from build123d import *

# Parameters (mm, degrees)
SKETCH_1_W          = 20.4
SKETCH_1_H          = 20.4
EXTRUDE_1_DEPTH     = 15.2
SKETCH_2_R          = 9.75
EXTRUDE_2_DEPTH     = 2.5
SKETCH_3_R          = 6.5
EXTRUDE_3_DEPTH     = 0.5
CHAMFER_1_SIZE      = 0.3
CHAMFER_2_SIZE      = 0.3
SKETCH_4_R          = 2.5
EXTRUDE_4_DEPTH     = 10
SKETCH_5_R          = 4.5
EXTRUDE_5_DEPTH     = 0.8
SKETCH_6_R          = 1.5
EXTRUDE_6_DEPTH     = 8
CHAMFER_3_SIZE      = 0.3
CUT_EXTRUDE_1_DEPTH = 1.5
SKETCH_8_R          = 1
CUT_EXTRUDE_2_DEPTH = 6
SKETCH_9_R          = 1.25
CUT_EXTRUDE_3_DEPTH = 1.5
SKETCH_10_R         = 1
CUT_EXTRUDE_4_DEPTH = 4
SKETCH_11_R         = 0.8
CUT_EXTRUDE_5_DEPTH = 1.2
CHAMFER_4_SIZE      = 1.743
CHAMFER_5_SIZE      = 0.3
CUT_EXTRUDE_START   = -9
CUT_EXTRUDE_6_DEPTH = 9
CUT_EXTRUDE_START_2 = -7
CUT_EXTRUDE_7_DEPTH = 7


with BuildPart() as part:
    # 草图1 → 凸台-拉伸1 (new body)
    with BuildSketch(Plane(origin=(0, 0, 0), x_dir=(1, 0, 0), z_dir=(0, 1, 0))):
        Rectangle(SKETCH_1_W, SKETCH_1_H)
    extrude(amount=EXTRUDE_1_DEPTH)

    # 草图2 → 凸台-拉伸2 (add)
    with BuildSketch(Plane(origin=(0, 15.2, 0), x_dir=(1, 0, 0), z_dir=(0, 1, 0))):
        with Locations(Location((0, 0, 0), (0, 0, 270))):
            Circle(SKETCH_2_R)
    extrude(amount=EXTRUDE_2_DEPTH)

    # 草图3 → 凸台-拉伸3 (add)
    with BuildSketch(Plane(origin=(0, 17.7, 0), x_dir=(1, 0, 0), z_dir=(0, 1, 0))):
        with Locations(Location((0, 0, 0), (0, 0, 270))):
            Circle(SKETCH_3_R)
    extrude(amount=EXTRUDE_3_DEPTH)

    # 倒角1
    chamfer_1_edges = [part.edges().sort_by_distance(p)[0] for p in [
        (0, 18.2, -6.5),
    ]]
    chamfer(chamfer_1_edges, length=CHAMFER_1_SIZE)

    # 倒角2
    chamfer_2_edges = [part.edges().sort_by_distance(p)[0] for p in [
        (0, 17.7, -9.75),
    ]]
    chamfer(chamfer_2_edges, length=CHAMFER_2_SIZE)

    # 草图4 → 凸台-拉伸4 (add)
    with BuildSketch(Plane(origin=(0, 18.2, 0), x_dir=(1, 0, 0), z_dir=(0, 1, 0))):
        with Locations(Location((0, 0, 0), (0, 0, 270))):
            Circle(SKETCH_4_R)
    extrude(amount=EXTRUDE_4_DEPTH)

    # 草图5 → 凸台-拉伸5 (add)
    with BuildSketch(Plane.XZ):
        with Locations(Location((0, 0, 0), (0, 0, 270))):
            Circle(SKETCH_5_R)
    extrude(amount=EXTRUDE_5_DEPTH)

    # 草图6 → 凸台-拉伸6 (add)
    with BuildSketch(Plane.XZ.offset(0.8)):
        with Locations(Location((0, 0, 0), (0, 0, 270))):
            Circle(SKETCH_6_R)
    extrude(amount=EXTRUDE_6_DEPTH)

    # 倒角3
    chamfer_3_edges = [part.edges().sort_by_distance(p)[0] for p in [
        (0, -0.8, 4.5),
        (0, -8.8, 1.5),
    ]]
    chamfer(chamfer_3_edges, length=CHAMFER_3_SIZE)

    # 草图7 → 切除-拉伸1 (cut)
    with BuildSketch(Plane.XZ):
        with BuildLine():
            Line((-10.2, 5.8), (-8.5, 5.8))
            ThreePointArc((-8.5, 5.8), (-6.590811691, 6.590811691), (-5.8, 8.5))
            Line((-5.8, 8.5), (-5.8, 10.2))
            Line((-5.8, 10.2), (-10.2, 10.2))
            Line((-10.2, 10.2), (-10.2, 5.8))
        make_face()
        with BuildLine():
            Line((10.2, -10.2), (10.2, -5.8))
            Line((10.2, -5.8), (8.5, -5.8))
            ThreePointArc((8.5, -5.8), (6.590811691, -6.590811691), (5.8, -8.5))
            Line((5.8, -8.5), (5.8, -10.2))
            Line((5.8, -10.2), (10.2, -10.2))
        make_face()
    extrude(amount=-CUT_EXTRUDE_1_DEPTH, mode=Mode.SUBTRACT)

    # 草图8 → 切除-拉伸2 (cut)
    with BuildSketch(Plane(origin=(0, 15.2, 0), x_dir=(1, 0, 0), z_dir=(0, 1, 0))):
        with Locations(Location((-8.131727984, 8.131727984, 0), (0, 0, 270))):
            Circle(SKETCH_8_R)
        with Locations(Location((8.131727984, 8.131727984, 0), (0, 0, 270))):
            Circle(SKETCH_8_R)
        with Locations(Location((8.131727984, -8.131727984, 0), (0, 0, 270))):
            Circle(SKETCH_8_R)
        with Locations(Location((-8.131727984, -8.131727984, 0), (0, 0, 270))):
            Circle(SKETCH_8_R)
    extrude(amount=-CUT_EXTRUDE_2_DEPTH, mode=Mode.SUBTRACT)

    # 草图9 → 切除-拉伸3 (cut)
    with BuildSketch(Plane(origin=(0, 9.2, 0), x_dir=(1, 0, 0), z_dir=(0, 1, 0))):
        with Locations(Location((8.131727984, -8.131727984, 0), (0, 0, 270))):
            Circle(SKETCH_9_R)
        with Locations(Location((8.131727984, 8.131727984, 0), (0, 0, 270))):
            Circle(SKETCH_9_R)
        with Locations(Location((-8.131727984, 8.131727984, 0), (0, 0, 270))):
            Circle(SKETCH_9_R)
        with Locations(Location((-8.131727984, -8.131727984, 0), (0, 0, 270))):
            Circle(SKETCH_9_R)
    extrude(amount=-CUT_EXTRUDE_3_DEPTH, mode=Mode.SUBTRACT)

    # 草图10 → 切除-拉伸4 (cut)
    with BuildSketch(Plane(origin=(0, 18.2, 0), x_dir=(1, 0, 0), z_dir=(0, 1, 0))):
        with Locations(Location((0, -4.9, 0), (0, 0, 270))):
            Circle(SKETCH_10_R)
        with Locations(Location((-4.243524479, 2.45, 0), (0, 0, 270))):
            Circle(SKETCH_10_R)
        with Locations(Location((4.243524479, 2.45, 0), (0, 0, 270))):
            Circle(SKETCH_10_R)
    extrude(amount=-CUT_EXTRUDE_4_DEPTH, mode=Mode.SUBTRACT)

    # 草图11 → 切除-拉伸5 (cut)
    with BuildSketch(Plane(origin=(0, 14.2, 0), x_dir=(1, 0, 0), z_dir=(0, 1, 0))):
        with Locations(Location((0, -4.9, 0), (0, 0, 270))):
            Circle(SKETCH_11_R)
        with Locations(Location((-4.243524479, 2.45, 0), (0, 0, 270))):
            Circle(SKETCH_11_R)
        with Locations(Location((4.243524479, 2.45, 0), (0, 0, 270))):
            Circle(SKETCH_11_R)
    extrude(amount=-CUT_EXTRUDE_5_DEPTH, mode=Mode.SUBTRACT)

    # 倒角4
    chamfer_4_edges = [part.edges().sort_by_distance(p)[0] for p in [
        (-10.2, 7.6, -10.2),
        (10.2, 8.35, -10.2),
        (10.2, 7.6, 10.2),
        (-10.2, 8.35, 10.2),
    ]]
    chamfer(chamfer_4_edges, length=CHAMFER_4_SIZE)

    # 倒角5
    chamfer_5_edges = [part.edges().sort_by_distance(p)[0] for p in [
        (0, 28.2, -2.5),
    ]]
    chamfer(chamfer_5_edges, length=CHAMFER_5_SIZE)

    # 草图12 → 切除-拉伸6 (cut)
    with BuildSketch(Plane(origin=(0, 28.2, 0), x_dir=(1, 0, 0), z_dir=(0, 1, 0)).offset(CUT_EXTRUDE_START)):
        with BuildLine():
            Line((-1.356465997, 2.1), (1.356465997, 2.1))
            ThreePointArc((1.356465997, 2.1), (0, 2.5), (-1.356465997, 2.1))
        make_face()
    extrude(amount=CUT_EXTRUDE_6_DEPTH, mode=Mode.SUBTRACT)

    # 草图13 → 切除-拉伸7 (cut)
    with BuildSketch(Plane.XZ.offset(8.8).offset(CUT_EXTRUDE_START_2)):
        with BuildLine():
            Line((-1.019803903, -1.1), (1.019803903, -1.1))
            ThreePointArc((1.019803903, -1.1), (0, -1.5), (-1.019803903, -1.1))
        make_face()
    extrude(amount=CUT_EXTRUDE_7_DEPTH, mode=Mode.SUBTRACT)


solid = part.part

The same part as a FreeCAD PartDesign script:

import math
import FreeCAD as App
import Part
import Sketcher

V = App.Vector


def edges_at(feature, points):
    """Names of the edges that pass closest to the given points."""
    edges = feature.Shape.Edges
    near = lambda p: min(range(len(edges)), key=lambda i: edges[i].distToShape(Part.Vertex(*p))[0])
    return sorted({f"Edge{near(p) + 1}" for p in points})

doc = App.newDocument("Part")
params = doc.addObject("Spreadsheet::Sheet", "Params")
for row, (alias, value) in enumerate([
    ("sketch1_width", "20.4 mm"),
    ("pad1_length", "15.2 mm"),
    ("sketch2_diameter", "19.5 mm"),
    ("pad2_length", "2.5 mm"),
    ("sketch3_diameter", "13 mm"),
    ("pad3_length", "0.5 mm"),
    ("chamfer_size", "0.3 mm"),
    ("chamfer2_size", "0.3 mm"),
    ("sketch4_diameter", "5 mm"),
    ("pad4_length", "10 mm"),
    ("sketch5_diameter", "9 mm"),
    ("pad5_length", "0.8 mm"),
    ("sketch6_diameter", "3 mm"),
    ("pad6_length", "8 mm"),
    ("chamfer3_size", "0.3 mm"),
    ("sketch7_radius", "2.7 mm"),
    ("sketch7_width", "1.7 mm"),
    ("pocket1_length", "1.5 mm"),
    ("sketch8_diameter", "2 mm"),
    ("pocket2_length", "6 mm"),
    ("sketch9_diameter", "2.5 mm"),
    ("pocket3_length", "1.5 mm"),
    ("sketch10_diameter", "2 mm"),
    ("pocket4_length", "4 mm"),
    ("sketch11_diameter", "1.6 mm"),
    ("pocket5_length", "1.2 mm"),
    ("chamfer4_size", "1.743 mm"),
    ("chamfer5_size", "0.3 mm"),
    ("sketch12_radius", "2.5 mm"),
    ("pocket6_length", "9 mm"),
    ("sketch13_radius", "1.5 mm"),
    ("pocket7_length", "7 mm"),
], start=1):
    params.set(f"A{row}", alias)
    params.set(f"B{row}", "=" + value)
    params.setAlias(f"B{row}", alias)

body = doc.addObject("PartDesign::Body", "Body")

sketch1 = body.newObject("Sketcher::SketchObject", "Sketch")
sketch1.AttachmentSupport = (doc.getObject("XZ_Plane"), [""])
sketch1.MapMode = "FlatFace"
sketch1.addGeometry([
    Part.LineSegment(V(-10, -10, 0), V(-10, 10, 0)),
    Part.LineSegment(V(-10, 10, 0), V(10, 10, 0)),
    Part.LineSegment(V(10, 10, 0), V(10, -10, 0)),
    Part.LineSegment(V(10, -10, 0), V(-10, -10, 0)),
], False)
sketch1.addConstraint([
    Sketcher.Constraint("Coincident", 0, 2, 1, 1),
    Sketcher.Constraint("Coincident", 1, 2, 2, 1),
    Sketcher.Constraint("Coincident", 2, 2, 3, 1),
    Sketcher.Constraint("Coincident", 3, 2, 0, 1),
    Sketcher.Constraint("Vertical", 0),
    Sketcher.Constraint("Horizontal", 1),
    Sketcher.Constraint("Vertical", 2),
    Sketcher.Constraint("Horizontal", 3),
    Sketcher.Constraint("Symmetric", 0, 2, 2, 2, -1, 1),
    Sketcher.Constraint("Equal", 3, 0),
    Sketcher.Constraint("DistanceX", 1, 1, 1, 2, 20.4),
])
sketch1.setExpression("Constraints[10]", "Params.sketch1_width")
pad1 = body.newObject("PartDesign::Pad", "Pad")
pad1.Profile = sketch1
pad1.setExpression("Length", "Params.pad1_length")
pad1.Reversed = True

sketch2 = body.newObject("Sketcher::SketchObject", "Sketch001")
sketch2.AttachmentSupport = (doc.getObject("XZ_Plane"), [""])
sketch2.MapMode = "FlatFace"
sketch2.AttachmentOffset = App.Placement(V(0, 0, -15.2), App.Rotation())
sketch2.addGeometry(Part.Circle(V(0, 0, 0), V(0, 0, 1), 10), False)
sketch2.addConstraint([
    Sketcher.Constraint("Coincident", 0, 3, -1, 1),
    Sketcher.Constraint("Diameter", 0, 19.5),
])
sketch2.setExpression("Constraints[1]", "Params.sketch2_diameter")
pad2 = body.newObject("PartDesign::Pad", "Pad001")
pad2.Profile = sketch2
pad2.setExpression("Length", "Params.pad2_length")
pad2.Reversed = True

sketch3 = body.newObject("Sketcher::SketchObject", "Sketch002")
sketch3.AttachmentSupport = (doc.getObject("XZ_Plane"), [""])
sketch3.MapMode = "FlatFace"
sketch3.AttachmentOffset = App.Placement(V(0, 0, -17.7), App.Rotation())
sketch3.addGeometry(Part.Circle(V(0, 0, 0), V(0, 0, 1), 6), False)
sketch3.addConstraint([
    Sketcher.Constraint("Coincident", 0, 3, -1, 1),
    Sketcher.Constraint("Diameter", 0, 13.0),
])
sketch3.setExpression("Constraints[1]", "Params.sketch3_diameter")
pad3 = body.newObject("PartDesign::Pad", "Pad002")
pad3.Profile = sketch3
pad3.setExpression("Length", "Params.pad3_length")
pad3.Reversed = True
doc.recompute()

chamfer = body.newObject("PartDesign::Chamfer", "Chamfer")
chamfer.Base = (pad3, edges_at(pad3, [(0, 18.2, -6.5)]))
chamfer.setExpression("Size", "Params.chamfer_size")
doc.recompute()

chamfer2 = body.newObject("PartDesign::Chamfer", "Chamfer001")
chamfer2.Base = (chamfer, edges_at(chamfer, [(0, 17.7, -9.75)]))
chamfer2.setExpression("Size", "Params.chamfer2_size")

sketch4 = body.newObject("Sketcher::SketchObject", "Sketch003")
sketch4.AttachmentSupport = (doc.getObject("XZ_Plane"), [""])
sketch4.MapMode = "FlatFace"
sketch4.AttachmentOffset = App.Placement(V(0, 0, -18.2), App.Rotation())
sketch4.addGeometry(Part.Circle(V(0, 0, 0), V(0, 0, 1), 2.5), False)
sketch4.addConstraint([
    Sketcher.Constraint("Coincident", 0, 3, -1, 1),
    Sketcher.Constraint("Diameter", 0, 5.0),
])
sketch4.setExpression("Constraints[1]", "Params.sketch4_diameter")
pad4 = body.newObject("PartDesign::Pad", "Pad003")
pad4.Profile = sketch4
pad4.setExpression("Length", "Params.pad4_length")
pad4.Reversed = True

sketch5 = body.newObject("Sketcher::SketchObject", "Sketch004")
sketch5.AttachmentSupport = (doc.getObject("XZ_Plane"), [""])
sketch5.MapMode = "FlatFace"
sketch5.addGeometry(Part.Circle(V(0, 0, 0), V(0, 0, 1), 4.5), False)
sketch5.addConstraint([
    Sketcher.Constraint("Coincident", 0, 3, -1, 1),
    Sketcher.Constraint("Diameter", 0, 9.0),
])
sketch5.setExpression("Constraints[1]", "Params.sketch5_diameter")
pad5 = body.newObject("PartDesign::Pad", "Pad004")
pad5.Profile = sketch5
pad5.setExpression("Length", "Params.pad5_length")

sketch6 = body.newObject("Sketcher::SketchObject", "Sketch005")
sketch6.AttachmentSupport = (doc.getObject("XZ_Plane"), [""])
sketch6.MapMode = "FlatFace"
sketch6.AttachmentOffset = App.Placement(V(0, 0, 0.8), App.Rotation())
sketch6.addGeometry(Part.Circle(V(0, 0, 0), V(0, 0, 1), 1.5), False)
sketch6.addConstraint([
    Sketcher.Constraint("Coincident", 0, 3, -1, 1),
    Sketcher.Constraint("Diameter", 0, 3.0),
])
sketch6.setExpression("Constraints[1]", "Params.sketch6_diameter")
pad6 = body.newObject("PartDesign::Pad", "Pad005")
pad6.Profile = sketch6
pad6.setExpression("Length", "Params.pad6_length")
doc.recompute()

chamfer3 = body.newObject("PartDesign::Chamfer", "Chamfer002")
chamfer3.Base = (pad6, edges_at(pad6, [(0, -0.8, 4.5), (0, -8.8, 1.5)]))
chamfer3.setExpression("Size", "Params.chamfer3_size")

sketch7 = body.newObject("Sketcher::SketchObject", "Sketch006")
sketch7.AttachmentSupport = (doc.getObject("XZ_Plane"), [""])
sketch7.MapMode = "FlatFace"
sketch7.addGeometry([
    Part.LineSegment(V(-10.2, 5.8, 0), V(-8.5, 5.8, 0)),
    Part.ArcOfCircle(Part.Circle(V(-8.5, 8.5, 0), V(0, 0, 1), 2.7), math.radians(-90), math.radians(0)),
    Part.LineSegment(V(-5.8, 8.5, 0), V(-5.8, 10.2, 0)),
    Part.LineSegment(V(-5.8, 10.2, 0), V(-10.2, 10.2, 0)),
    Part.LineSegment(V(-10.2, 10.2, 0), V(-10.2, 5.8, 0)),
    Part.LineSegment(V(10.2, -10.2, 0), V(10.2, -5.8, 0)),
    Part.LineSegment(V(10.2, -5.8, 0), V(8.5, -5.8, 0)),
    Part.ArcOfCircle(Part.Circle(V(8.5, -8.5, 0), V(0, 0, 1), 2.7), math.radians(90), math.radians(180)),
    Part.LineSegment(V(5.8, -8.5, 0), V(5.8, -10.2, 0)),
    Part.LineSegment(V(5.8, -10.2, 0), V(10.2, -10.2, 0)),
], False)
sketch7.addConstraint([
    Sketcher.Constraint("Tangent", 0, 2, 1, 1),
    Sketcher.Constraint("Tangent", 1, 2, 2, 1),
    Sketcher.Constraint("Coincident", 2, 2, 3, 1),
    Sketcher.Constraint("Coincident", 3, 2, 4, 1),
    Sketcher.Constraint("Coincident", 4, 2, 0, 1),
    Sketcher.Constraint("Coincident", 5, 2, 6, 1),
    Sketcher.Constraint("Tangent", 6, 2, 7, 1),
    Sketcher.Constraint("Tangent", 7, 2, 8, 1),
    Sketcher.Constraint("Coincident", 8, 2, 9, 1),
    Sketcher.Constraint("Coincident", 9, 2, 5, 1),
    Sketcher.Constraint("Horizontal", 0),
    Sketcher.Constraint("Vertical", 2),
    Sketcher.Constraint("Horizontal", 3),
    Sketcher.Constraint("Vertical", 4),
    Sketcher.Constraint("Vertical", 5),
    Sketcher.Constraint("Horizontal", 6),
    Sketcher.Constraint("Vertical", 8),
    Sketcher.Constraint("Horizontal", 9),
    Sketcher.Constraint("Equal", 1, 7),
    Sketcher.Constraint("Symmetric", 1, 3, 7, 3, -1, 1),
    Sketcher.Constraint("Symmetric", 3, 2, 9, 2, -1, 1),
    Sketcher.Constraint("Equal", 6, 2),
    Sketcher.Constraint("Radius", 1, 2.7),
    Sketcher.Constraint("DistanceX", 0, 1, 0, 2, 1.7),
    Sketcher.Constraint("DistanceX", 1, 3, 7, 3, 17.0),
    Sketcher.Constraint("DistanceY", 7, 3, 1, 3, 17.0),
])
sketch7.setExpression("Constraints[22]", "Params.sketch7_radius")
sketch7.setExpression("Constraints[23]", "Params.sketch7_width")
pocket1 = body.newObject("PartDesign::Pocket", "Pocket")
pocket1.Profile = sketch7
pocket1.setExpression("Length", "Params.pocket1_length")

sketch8 = body.newObject("Sketcher::SketchObject", "Sketch007")
sketch8.AttachmentSupport = (doc.getObject("XZ_Plane"), [""])
sketch8.MapMode = "FlatFace"
sketch8.AttachmentOffset = App.Placement(V(0, 0, -15.2), App.Rotation())
sketch8.addGeometry([
    Part.Circle(V(-8.1, -8.1, 0), V(0, 0, 1), 1),
    Part.Circle(V(8.1, -8.1, 0), V(0, 0, 1), 1),
    Part.Circle(V(8.1, 8.1, 0), V(0, 0, 1), 1),
    Part.Circle(V(-8.1, 8.1, 0), V(0, 0, 1), 1),
], False)
sketch8.addConstraint([
    Sketcher.Constraint("Equal", 0, 1),
    Sketcher.Constraint("Equal", 1, 2),
    Sketcher.Constraint("Equal", 2, 3),
    Sketcher.Constraint("Symmetric", 0, 3, 2, 3, -1, 1),
    Sketcher.Constraint("Symmetric", 1, 3, 3, 3, -1, 1),
    Sketcher.Constraint("Symmetric", 0, 3, 1, 3, -2),
    Sketcher.Constraint("Diameter", 0, 2.0),
    Sketcher.Constraint("DistanceX", 0, 3, -1, 1, 8.131728),
    Sketcher.Constraint("DistanceY", 0, 3, -1, 1, 8.131728),
])
sketch8.setExpression("Constraints[6]", "Params.sketch8_diameter")
pocket2 = body.newObject("PartDesign::Pocket", "Pocket001")
pocket2.Profile = sketch8
pocket2.setExpression("Length", "Params.pocket2_length")
pocket2.Reversed = True

sketch9 = body.newObject("Sketcher::SketchObject", "Sketch008")
sketch9.AttachmentSupport = (doc.getObject("XZ_Plane"), [""])
sketch9.MapMode = "FlatFace"
sketch9.AttachmentOffset = App.Placement(V(0, 0, -9.2), App.Rotation())
sketch9.addGeometry([
    Part.Circle(V(8.1, 8.1, 0), V(0, 0, 1), 1.2),
    Part.Circle(V(8.1, -8.1, 0), V(0, 0, 1), 1.2),
    Part.Circle(V(-8.1, -8.1, 0), V(0, 0, 1), 1.2),
    Part.Circle(V(-8.1, 8.1, 0), V(0, 0, 1), 1.2),
], False)
sketch9.addConstraint([
    Sketcher.Constraint("Equal", 0, 1),
    Sketcher.Constraint("Equal", 1, 2),
    Sketcher.Constraint("Equal", 2, 3),
    Sketcher.Constraint("Symmetric", 0, 3, 2, 3, -1, 1),
    Sketcher.Constraint("Symmetric", 1, 3, 3, 3, -1, 1),
    Sketcher.Constraint("Symmetric", 1, 3, 2, 3, -2),
    Sketcher.Constraint("Diameter", 0, 2.5),
    Sketcher.Constraint("DistanceX", -1, 1, 0, 3, 8.131728),
    Sketcher.Constraint("DistanceY", -1, 1, 0, 3, 8.131728),
])
sketch9.setExpression("Constraints[6]", "Params.sketch9_diameter")
pocket3 = body.newObject("PartDesign::Pocket", "Pocket002")
pocket3.Profile = sketch9
pocket3.setExpression("Length", "Params.pocket3_length")
pocket3.Reversed = True

sketch10 = body.newObject("Sketcher::SketchObject", "Sketch009")
sketch10.AttachmentSupport = (doc.getObject("XZ_Plane"), [""])
sketch10.MapMode = "FlatFace"
sketch10.AttachmentOffset = App.Placement(V(0, 0, -18.2), App.Rotation())
sketch10.addGeometry([
    Part.Circle(V(0, 4.9, 0), V(0, 0, 1), 1),
    Part.Circle(V(-4.2, -2.5, 0), V(0, 0, 1), 1),
    Part.Circle(V(4.2, -2.5, 0), V(0, 0, 1), 1),
], False)
sketch10.addConstraint([
    Sketcher.Constraint("Equal", 0, 1),
    Sketcher.Constraint("Equal", 1, 2),
    Sketcher.Constraint("Symmetric", 1, 3, 2, 3, -2),
    Sketcher.Constraint("PointOnObject", 0, 3, -2),
    Sketcher.Constraint("Diameter", 0, 2.0),
    Sketcher.Constraint("DistanceY", -1, 1, 0, 3, 4.9),
    Sketcher.Constraint("DistanceY", 1, 3, -1, 1, 2.45),
    Sketcher.Constraint("DistanceX", 1, 3, 2, 3, 8.487049),
])
sketch10.setExpression("Constraints[4]", "Params.sketch10_diameter")
pocket4 = body.newObject("PartDesign::Pocket", "Pocket003")
pocket4.Profile = sketch10
pocket4.setExpression("Length", "Params.pocket4_length")
pocket4.Reversed = True

sketch11 = body.newObject("Sketcher::SketchObject", "Sketch010")
sketch11.AttachmentSupport = (doc.getObject("XZ_Plane"), [""])
sketch11.MapMode = "FlatFace"
sketch11.AttachmentOffset = App.Placement(V(0, 0, -14.2), App.Rotation())
sketch11.addGeometry([
    Part.Circle(V(0, 4.9, 0), V(0, 0, 1), 0.8),
    Part.Circle(V(-4.2, -2.5, 0), V(0, 0, 1), 0.8),
    Part.Circle(V(4.2, -2.5, 0), V(0, 0, 1), 0.8),
], False)
sketch11.addConstraint([
    Sketcher.Constraint("Equal", 0, 1),
    Sketcher.Constraint("Equal", 1, 2),
    Sketcher.Constraint("Symmetric", 1, 3, 2, 3, -2),
    Sketcher.Constraint("PointOnObject", 0, 3, -2),
    Sketcher.Constraint("Diameter", 0, 1.6),
    Sketcher.Constraint("DistanceY", -1, 1, 0, 3, 4.9),
    Sketcher.Constraint("DistanceY", 1, 3, -1, 1, 2.45),
    Sketcher.Constraint("DistanceX", 1, 3, 2, 3, 8.487049),
])
sketch11.setExpression("Constraints[4]", "Params.sketch11_diameter")
pocket5 = body.newObject("PartDesign::Pocket", "Pocket004")
pocket5.Profile = sketch11
pocket5.setExpression("Length", "Params.pocket5_length")
pocket5.Reversed = True
doc.recompute()

chamfer4 = body.newObject("PartDesign::Chamfer", "Chamfer003")
chamfer4.Base = (pocket5, edges_at(pocket5, [
    (-10.2, 7.6, -10.2),
    (10.2, 8.35, -10.2),
    (10.2, 7.6, 10.2),
    (-10.2, 8.35, 10.2),
]))
chamfer4.setExpression("Size", "Params.chamfer4_size")
doc.recompute()

chamfer5 = body.newObject("PartDesign::Chamfer", "Chamfer004")
chamfer5.Base = (chamfer4, edges_at(chamfer4, [(0, 28.2, -2.5)]))
chamfer5.setExpression("Size", "Params.chamfer5_size")

sketch12 = body.newObject("Sketcher::SketchObject", "Sketch011")
sketch12.AttachmentSupport = (doc.getObject("XZ_Plane"), [""])
sketch12.MapMode = "FlatFace"
sketch12.AttachmentOffset = App.Placement(V(0, 0, -19.2), App.Rotation())
sketch12.addGeometry([
    Part.LineSegment(V(-1.4, -2.1, 0), V(1.4, -2.1, 0)),
    Part.ArcOfCircle(Part.Circle(V(0, 0, 0), V(0, 0, 1), 2.5), math.radians(-123), math.radians(-57)),
], False)
sketch12.addConstraint([
    Sketcher.Constraint("Coincident", 0, 1, 1, 1),
    Sketcher.Constraint("Coincident", 1, 2, 0, 2),
    Sketcher.Constraint("Horizontal", 0),
    Sketcher.Constraint("Coincident", 1, 3, -1, 1),
    Sketcher.Constraint("Radius", 1, 2.5),
    Sketcher.Constraint("DistanceY", 0, 1, -1, 1, 2.1),
])
sketch12.setExpression("Constraints[4]", "Params.sketch12_radius")
pocket6 = body.newObject("PartDesign::Pocket", "Pocket005")
pocket6.Profile = sketch12
pocket6.setExpression("Length", "Params.pocket6_length")

sketch13 = body.newObject("Sketcher::SketchObject", "Sketch012")
sketch13.AttachmentSupport = (doc.getObject("XZ_Plane"), [""])
sketch13.MapMode = "FlatFace"
sketch13.AttachmentOffset = App.Placement(V(0, 0, 1.8), App.Rotation())
sketch13.addGeometry([
    Part.LineSegment(V(1, -1.1, 0), V(-1, -1.1, 0)),
    Part.ArcOfCircle(Part.Circle(V(0, 0, 0), V(0, 0, 1), 1.5), math.radians(-133), math.radians(-47)),
], False)
sketch13.addConstraint([
    Sketcher.Constraint("Coincident", 0, 1, 1, 2),
    Sketcher.Constraint("Coincident", 1, 1, 0, 2),
    Sketcher.Constraint("Horizontal", 0),
    Sketcher.Constraint("Coincident", 1, 3, -1, 1),
    Sketcher.Constraint("Radius", 1, 1.5),
    Sketcher.Constraint("DistanceY", 0, 1, -1, 1, 1.1),
])
sketch13.setExpression("Constraints[4]", "Params.sketch13_radius")
pocket7 = body.newObject("PartDesign::Pocket", "Pocket006")
pocket7.Profile = sketch13
pocket7.setExpression("Length", "Params.pocket7_length")
pocket7.Reversed = True

doc.recompute()
